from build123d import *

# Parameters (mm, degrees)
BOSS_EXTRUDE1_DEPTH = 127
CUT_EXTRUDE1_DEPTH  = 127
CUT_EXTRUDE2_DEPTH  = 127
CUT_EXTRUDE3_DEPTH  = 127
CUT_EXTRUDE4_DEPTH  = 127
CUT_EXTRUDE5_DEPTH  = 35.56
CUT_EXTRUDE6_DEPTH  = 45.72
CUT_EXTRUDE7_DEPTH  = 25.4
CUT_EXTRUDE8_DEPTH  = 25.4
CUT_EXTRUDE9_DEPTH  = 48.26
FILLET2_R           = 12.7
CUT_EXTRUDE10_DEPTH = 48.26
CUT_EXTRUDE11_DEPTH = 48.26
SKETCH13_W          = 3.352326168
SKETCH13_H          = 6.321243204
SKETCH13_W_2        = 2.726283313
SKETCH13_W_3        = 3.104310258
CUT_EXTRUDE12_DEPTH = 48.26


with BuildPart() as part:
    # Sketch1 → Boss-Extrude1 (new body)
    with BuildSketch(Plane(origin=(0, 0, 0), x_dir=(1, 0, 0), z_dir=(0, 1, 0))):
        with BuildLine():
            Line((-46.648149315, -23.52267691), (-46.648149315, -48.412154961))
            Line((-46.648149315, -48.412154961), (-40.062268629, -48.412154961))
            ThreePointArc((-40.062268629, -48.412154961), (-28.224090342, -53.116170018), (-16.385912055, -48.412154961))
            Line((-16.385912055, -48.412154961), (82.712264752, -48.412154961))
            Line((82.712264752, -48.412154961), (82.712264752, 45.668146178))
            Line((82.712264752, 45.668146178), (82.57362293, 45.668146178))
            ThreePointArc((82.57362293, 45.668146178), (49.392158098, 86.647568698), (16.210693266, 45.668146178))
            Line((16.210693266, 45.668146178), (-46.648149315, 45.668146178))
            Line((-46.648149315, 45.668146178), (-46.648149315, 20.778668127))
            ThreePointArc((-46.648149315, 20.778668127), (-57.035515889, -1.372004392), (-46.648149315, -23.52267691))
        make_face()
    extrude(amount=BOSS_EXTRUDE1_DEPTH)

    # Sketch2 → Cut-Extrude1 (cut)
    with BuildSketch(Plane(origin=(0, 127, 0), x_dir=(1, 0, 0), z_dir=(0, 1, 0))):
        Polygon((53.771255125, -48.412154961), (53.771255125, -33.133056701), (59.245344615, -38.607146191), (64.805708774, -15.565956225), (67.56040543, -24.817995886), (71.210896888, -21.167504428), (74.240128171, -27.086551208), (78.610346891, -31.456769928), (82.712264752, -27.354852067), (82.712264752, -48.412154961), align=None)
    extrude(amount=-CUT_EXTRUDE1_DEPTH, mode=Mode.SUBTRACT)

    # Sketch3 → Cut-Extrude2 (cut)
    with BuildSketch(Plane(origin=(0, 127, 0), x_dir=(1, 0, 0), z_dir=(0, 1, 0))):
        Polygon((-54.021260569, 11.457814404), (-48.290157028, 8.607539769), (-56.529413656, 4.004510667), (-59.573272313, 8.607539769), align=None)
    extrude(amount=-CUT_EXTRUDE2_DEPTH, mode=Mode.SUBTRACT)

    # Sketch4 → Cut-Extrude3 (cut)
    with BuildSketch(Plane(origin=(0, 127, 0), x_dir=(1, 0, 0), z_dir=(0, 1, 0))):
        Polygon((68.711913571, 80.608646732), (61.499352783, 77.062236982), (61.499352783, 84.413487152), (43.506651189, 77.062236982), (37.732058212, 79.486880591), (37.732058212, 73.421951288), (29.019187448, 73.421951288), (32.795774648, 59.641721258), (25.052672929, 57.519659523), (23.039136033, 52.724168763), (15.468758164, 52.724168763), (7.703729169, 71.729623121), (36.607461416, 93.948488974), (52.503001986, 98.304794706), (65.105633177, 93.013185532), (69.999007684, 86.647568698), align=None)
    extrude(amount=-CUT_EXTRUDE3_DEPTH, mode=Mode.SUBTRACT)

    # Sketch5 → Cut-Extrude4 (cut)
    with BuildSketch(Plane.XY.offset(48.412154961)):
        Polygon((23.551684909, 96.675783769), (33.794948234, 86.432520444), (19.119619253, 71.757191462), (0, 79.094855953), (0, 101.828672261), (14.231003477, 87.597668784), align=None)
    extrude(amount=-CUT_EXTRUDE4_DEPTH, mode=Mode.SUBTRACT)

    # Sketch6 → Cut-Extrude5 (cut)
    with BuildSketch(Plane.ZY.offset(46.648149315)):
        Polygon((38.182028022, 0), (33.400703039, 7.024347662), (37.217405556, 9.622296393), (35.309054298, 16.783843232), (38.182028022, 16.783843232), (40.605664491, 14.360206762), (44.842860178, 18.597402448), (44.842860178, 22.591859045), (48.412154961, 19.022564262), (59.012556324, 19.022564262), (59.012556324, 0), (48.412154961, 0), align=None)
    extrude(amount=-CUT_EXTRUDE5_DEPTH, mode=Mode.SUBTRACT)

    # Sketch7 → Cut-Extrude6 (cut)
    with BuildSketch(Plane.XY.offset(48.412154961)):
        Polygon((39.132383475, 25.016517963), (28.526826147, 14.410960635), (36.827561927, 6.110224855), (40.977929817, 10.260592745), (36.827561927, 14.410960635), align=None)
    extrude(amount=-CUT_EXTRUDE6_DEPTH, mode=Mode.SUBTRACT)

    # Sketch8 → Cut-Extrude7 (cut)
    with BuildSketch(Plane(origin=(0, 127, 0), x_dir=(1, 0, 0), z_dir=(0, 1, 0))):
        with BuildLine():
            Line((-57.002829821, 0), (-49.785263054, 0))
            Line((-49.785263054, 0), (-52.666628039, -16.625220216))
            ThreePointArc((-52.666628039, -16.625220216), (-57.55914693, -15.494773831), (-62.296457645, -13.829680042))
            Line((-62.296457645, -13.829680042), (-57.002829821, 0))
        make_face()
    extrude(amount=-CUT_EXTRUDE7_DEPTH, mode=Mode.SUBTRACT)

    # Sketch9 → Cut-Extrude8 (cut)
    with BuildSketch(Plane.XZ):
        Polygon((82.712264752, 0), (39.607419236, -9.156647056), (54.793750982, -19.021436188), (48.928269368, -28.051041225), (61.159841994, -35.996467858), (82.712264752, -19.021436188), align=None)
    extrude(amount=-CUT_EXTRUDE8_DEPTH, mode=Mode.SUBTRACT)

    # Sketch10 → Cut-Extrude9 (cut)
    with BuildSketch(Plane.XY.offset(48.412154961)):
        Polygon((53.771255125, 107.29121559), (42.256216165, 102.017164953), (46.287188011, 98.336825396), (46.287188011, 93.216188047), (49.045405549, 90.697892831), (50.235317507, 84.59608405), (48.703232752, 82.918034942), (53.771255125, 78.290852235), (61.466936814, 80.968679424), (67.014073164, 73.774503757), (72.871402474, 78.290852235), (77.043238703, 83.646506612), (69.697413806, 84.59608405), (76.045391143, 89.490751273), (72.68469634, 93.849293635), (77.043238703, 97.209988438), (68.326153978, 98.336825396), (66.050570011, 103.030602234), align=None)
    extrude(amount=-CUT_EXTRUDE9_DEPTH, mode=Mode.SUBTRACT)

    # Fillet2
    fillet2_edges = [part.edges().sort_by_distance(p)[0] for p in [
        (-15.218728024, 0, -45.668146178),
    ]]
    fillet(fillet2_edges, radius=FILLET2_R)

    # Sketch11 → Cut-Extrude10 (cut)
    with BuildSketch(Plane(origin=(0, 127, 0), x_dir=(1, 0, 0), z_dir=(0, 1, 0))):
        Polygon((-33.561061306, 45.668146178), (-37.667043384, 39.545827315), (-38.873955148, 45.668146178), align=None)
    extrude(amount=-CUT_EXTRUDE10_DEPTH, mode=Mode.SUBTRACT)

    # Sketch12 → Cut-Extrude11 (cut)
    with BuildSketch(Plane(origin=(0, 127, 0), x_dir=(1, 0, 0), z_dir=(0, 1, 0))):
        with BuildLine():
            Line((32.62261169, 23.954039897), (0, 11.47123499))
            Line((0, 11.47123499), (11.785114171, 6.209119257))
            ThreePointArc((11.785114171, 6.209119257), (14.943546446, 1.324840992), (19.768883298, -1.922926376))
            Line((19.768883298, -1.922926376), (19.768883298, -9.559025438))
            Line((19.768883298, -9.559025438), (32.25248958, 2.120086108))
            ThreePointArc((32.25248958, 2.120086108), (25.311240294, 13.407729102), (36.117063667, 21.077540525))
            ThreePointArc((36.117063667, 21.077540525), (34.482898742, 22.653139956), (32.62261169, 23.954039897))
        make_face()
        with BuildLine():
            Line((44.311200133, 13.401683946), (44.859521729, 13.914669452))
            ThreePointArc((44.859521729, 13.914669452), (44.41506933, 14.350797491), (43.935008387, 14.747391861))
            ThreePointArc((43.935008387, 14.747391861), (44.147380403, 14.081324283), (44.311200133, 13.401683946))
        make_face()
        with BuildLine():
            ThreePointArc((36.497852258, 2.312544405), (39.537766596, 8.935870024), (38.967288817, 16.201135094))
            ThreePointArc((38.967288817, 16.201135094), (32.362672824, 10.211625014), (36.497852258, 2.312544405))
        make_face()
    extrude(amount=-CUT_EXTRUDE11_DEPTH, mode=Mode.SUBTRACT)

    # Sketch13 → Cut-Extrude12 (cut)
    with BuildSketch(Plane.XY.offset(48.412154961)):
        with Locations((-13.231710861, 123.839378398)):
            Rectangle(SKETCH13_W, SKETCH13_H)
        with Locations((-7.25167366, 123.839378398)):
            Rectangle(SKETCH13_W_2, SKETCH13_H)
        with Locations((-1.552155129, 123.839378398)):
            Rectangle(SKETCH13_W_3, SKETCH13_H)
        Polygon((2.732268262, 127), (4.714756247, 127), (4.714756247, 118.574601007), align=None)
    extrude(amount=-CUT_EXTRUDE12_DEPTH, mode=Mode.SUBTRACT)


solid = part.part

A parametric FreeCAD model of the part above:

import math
import FreeCAD as App
import Part
import Sketcher
from FreeCAD import Vector
Q = App.Units.Quantity


def edges_at(feature, points):
    """Names of the edges that pass closest to the given points."""
    edges = feature.Shape.Edges
    near = lambda p: min(range(len(edges)), key=lambda i: edges[i].distToShape(Part.Vertex(*p))[0])
    return sorted({f"Edge{near(p) + 1}" for p in points})

doc = App.newDocument("Part")
body = doc.addObject("PartDesign::Body", "Body")

sketch1 = body.newObject("Sketcher::SketchObject", "Sketch")
sketch1.AttachmentSupport = (doc.getObject("XZ_Plane"), [""])
sketch1.MapMode = "FlatFace"
sketch1.addGeometry(Part.LineSegment(Vector(-46.65, 23.52, 0), Vector(-46.65, 48.41, 0)), False)
sketch1.addGeometry(Part.LineSegment(Vector(-46.65, 48.41, 0), Vector(-40.06, 48.41, 0)), False)
sketch1.addGeometry(Part.ArcOfCircle(Part.Circle(Vector(-28.22, 35.87, 0), Vector(0, 0, 1), 17.25), math.radians(47), math.radians(133)), False)
sketch1.addGeometry(Part.LineSegment(Vector(-16.39, 48.41, 0), Vector(82.71, 48.41, 0)), False)
sketch1.addGeometry(Part.LineSegment(Vector(82.71, 48.41, 0), Vector(82.71, -45.67, 0)), False)
sketch1.addGeometry(Part.LineSegment(Vector(82.71, -45.67, 0), Vector(82.57, -45.67, 0)), False)
sketch1.addGeometry(Part.ArcOfCircle(Part.Circle(Vector(49.39, -52.72, 0), Vector(0, 0, 1), 33.92), math.radians(168), math.radians(372)), False)
sketch1.addGeometry(Part.LineSegment(Vector(16.21, -45.67, 0), Vector(-46.65, -45.67, 0)), False)
sketch1.addGeometry(Part.LineSegment(Vector(-46.65, -45.67, 0), Vector(-46.65, -20.78, 0)), False)
sketch1.addGeometry(Part.ArcOfCircle(Part.Circle(Vector(-28.22, 1.37, 0), Vector(0, 0, 1), 28.81), math.radians(130), math.radians(230)), False)
sketch1.addConstraint(Sketcher.Constraint("Coincident", 0, 2, 1, 1))
sketch1.addConstraint(Sketcher.Constraint("Coincident", 1, 2, 2, 2))
sketch1.addConstraint(Sketcher.Constraint("Coincident", 2, 1, 3, 1))
sketch1.addConstraint(Sketcher.Constraint("Coincident", 3, 2, 4, 1))
sketch1.addConstraint(Sketcher.Constraint("Coincident", 4, 2, 5, 1))
sketch1.addConstraint(Sketcher.Constraint("Coincident", 5, 2, 6, 2))
sketch1.addConstraint(Sketcher.Constraint("Coincident", 6, 1, 7, 1))
sketch1.addConstraint(Sketcher.Constraint("Coincident", 7, 2, 8, 1))
sketch1.addConstraint(Sketcher.Constraint("Coincident", 8, 2, 9, 2))
sketch1.addConstraint(Sketcher.Constraint("Coincident", 9, 1, 0, 1))
sketch1.addConstraint(Sketcher.Constraint("Vertical", 0))
sketch1.addConstraint(Sketcher.Constraint("Horizontal", 1))
sketch1.addConstraint(Sketcher.Constraint("Horizontal", 3))
sketch1.addConstraint(Sketcher.Constraint("Vertical", 4))
sketch1.addConstraint(Sketcher.Constraint("Horizontal", 5))
sketch1.addConstraint(Sketcher.Constraint("Horizontal", 7))
sketch1.addConstraint(Sketcher.Constraint("Vertical", 8))
sketch1.addConstraint(Sketcher.Constraint("Horizontal", 1, 2, 2, 1))
sketch1.addConstraint(Sketcher.Constraint("Horizontal", 5, 2, 6, 1))
sketch1.addConstraint(Sketcher.Constraint("Vertical", 2, 3, 9, 3))
sketch1.addConstraint(Sketcher.Constraint("Vertical", 0, 2, 7, 2))
sketch1.addConstraint(Sketcher.Constraint("Equal", 0, 8))
sketch1.addConstraint(Sketcher.Constraint("Radius", 6, Q("33.9234 mm")))
sketch1.addConstraint(Sketcher.Constraint("DistanceY", 4, 2, 4, 1, Q("94.080301 mm")))
sketch1.addConstraint(Sketcher.Constraint("Radius", 2, Q("17.248055 mm")))
sketch1.addConstraint(Sketcher.Constraint("Radius", 9, Q("28.811426 mm")))
sketch1.addConstraint(Sketcher.Constraint("DistanceX", 1, 1, 1, 2, Q("6.585881 mm")))
sketch1.addConstraint(Sketcher.Constraint("DistanceX", 5, 2, 5, 1, Q("0.138642 mm")))
sketch1.addConstraint(Sketcher.Constraint("DistanceY", 0, 1, 0, 2, Q("24.889478 mm")))
sketch1.addConstraint(Sketcher.Constraint("DistanceX", 3, 1, 3, 2, Q("99.098177 mm")))
sketch1.addConstraint(Sketcher.Constraint("DistanceX", 7, 2, 7, 1, Q("62.858843 mm")))
sketch1.addConstraint(Sketcher.Constraint("DistanceX", 2, 3, -1, 1, Q("28.22409 mm")))
sketch1.addConstraint(Sketcher.Constraint("DistanceY", 6, 3, -1, 1, Q("52.724169 mm")))
pad1 = body.newObject("PartDesign::Pad", "Pad")
pad1.Profile = sketch1
pad1.Length = Q("5 in")
pad1.Reversed = True

sketch2 = body.newObject("Sketcher::SketchObject", "Sketch001")
sketch2.AttachmentSupport = (doc.getObject("XZ_Plane"), [""])
sketch2.MapMode = "FlatFace"
sketch2.AttachmentOffset = App.Placement(Vector(0, 0, -5 * 25.4), App.Rotation())
sketch2.addGeometry(Part.LineSegment(Vector(54, 33, 0), Vector(54, 48, 0)), False)
sketch2.addGeometry(Part.LineSegment(Vector(54, 48, 0), Vector(83, 48, 0)), False)
sketch2.addGeometry(Part.LineSegment(Vector(83, 48, 0), Vector(83, 27, 0)), False)
sketch2.addGeometry(Part.LineSegment(Vector(83, 27, 0), Vector(79, 31, 0)), False)
sketch2.addGeometry(Part.LineSegment(Vector(79, 31, 0), Vector(74, 27, 0)), False)
sketch2.addGeometry(Part.LineSegment(Vector(74, 27, 0), Vector(71, 21, 0)), False)
sketch2.addGeometry(Part.LineSegment(Vector(71, 21, 0), Vector(68, 25, 0)), False)
sketch2.addGeometry(Part.LineSegment(Vector(68, 25, 0), Vector(65, 16, 0)), False)
sketch2.addGeometry(Part.LineSegment(Vector(65, 16, 0), Vector(59, 39, 0)), False)
sketch2.addGeometry(Part.LineSegment(Vector(59, 39, 0), Vector(54, 33, 0)), False)
sketch2.addConstraint(Sketcher.Constraint("Coincident", 0, 2, 1, 1))
sketch2.addConstraint(Sketcher.Constraint("Coincident", 1, 2, 2, 1))
sketch2.addConstraint(Sketcher.Constraint("Coincident", 2, 2, 3, 1))
sketch2.addConstraint(Sketcher.Constraint("Coincident", 3, 2, 4, 1))
sketch2.addConstraint(Sketcher.Constraint("Coincident", 4, 2, 5, 1))
sketch2.addConstraint(Sketcher.Constraint("Coincident", 5, 2, 6, 1))
sketch2.addConstraint(Sketcher.Constraint("Coincident", 6, 2, 7, 1))
sketch2.addConstraint(Sketcher.Constraint("Coincident", 7, 2, 8, 1))
sketch2.addConstraint(Sketcher.Constraint("Coincident", 8, 2, 9, 1))
sketch2.addConstraint(Sketcher.Constraint("Coincident", 9, 2, 0, 1))
sketch2.addConstraint(Sketcher.Constraint("Vertical", 0))
sketch2.addConstraint(Sketcher.Constraint("Horizontal", 1))
sketch2.addConstraint(Sketcher.Constraint("Vertical", 2))
sketch2.addConstraint(Sketcher.Constraint("Perpendicular", 3, 4))
sketch2.addConstraint(Sketcher.Constraint("Perpendicular", 4, 6))
sketch2.addConstraint(Sketcher.Constraint("Perpendicular", 6, 9))
sketch2.addConstraint(Sketcher.Constraint("Angle", 3, Q("135 deg")))
sketch2.addConstraint(Sketcher.Constraint("DistanceY", 0, 1, 0, 2, Q("15.279098 mm")))
sketch2.addConstraint(Sketcher.Constraint("DistanceX", 0, 2, 5, 2, Q("0.6866001 in")))
sketch2.addConstraint(Sketcher.Constraint("DistanceY", 5, 2, 8, 2, Q("0.6866001 in")))
sketch2.addConstraint(Sketcher.Constraint("DistanceX", 1, 1, 1, 2, Q("28.94101 mm")))
sketch2.addConstraint(Sketcher.Constraint("DistanceY", 4, 2, 2, 2, Q("0.268301 mm")))
sketch2.addConstraint(Sketcher.Constraint("DistanceY", 7, 2, 9, 2, Q("17.5671 mm")))
sketch2.addConstraint(Sketcher.Constraint("Distance", 9, Q("7.741532 mm")))
sketch2.addConstraint(Sketcher.Constraint("DistanceY", 2, 2, 2, 1, Q("21.057303 mm")))
sketch2.addConstraint(Sketcher.Constraint("DistanceY", -1, 1, 3, 2, Q("31.45677 mm")))
sketch2.addConstraint(Sketcher.Constraint("DistanceX", -1, 1, 4, 2, Q("74.240128 mm")))
sketch2.addConstraint(Sketcher.Constraint("DistanceY", -1, 1, 4, 2, Q("27.086551 mm")))
sketch2.addConstraint(Sketcher.Constraint("DistanceX", -1, 1, 7, 2, Q("64.805709 mm")))
sketch2.addConstraint(Sketcher.Constraint("DistanceX", 6, 2, 5, 2, Q("3.650491 mm")))
pocket1 = body.newObject("PartDesign::Pocket", "Pocket")
pocket1.Profile = sketch2
pocket1.Length = Q("5 in")
pocket1.Reversed = True

sketch3 = body.newObject("Sketcher::SketchObject", "Sketch002")
sketch3.AttachmentSupport = (doc.getObject("XZ_Plane"), [""])
sketch3.MapMode = "FlatFace"
sketch3.AttachmentOffset = App.Placement(Vector(0, 0, -5 * 25.4), App.Rotation())
sketch3.addGeometry(Part.LineSegment(Vector(-48, -9, 0), Vector(-54, -11, 0)), False)
sketch3.addGeometry(Part.LineSegment(Vector(-54, -11, 0), Vector(-60, -9, 0)), False)
sketch3.addGeometry(Part.LineSegment(Vector(-60, -9, 0), Vector(-57, -4, 0)), False)
sketch3.addGeometry(Part.LineSegment(Vector(-57, -4, 0), Vector(-48, -9, 0)), False)
sketch3.addConstraint(Sketcher.Constraint("Coincident", 0, 2, 1, 1))
sketch3.addConstraint(Sketcher.Constraint("Coincident", 1, 2, 2, 1))
sketch3.addConstraint(Sketcher.Constraint("Coincident", 2, 2, 3, 1))
sketch3.addConstraint(Sketcher.Constraint("Coincident", 3, 2, 0, 1))
sketch3.addConstraint(Sketcher.Constraint("Horizontal", 1, 2, 3, 2))
sketch3.addConstraint(Sketcher.Constraint("Distance", 0, Q("6.400751 mm")))
sketch3.addConstraint(Sketcher.Constraint("Distance", 2, Q("5.518419 mm")))
sketch3.addConstraint(Sketcher.Constraint("Distance", 3, Q("9.437861 mm")))
sketch3.addConstraint(Sketcher.Constraint("DistanceX", 0, 2, -1, 1, Q("54.021261 mm")))
sketch3.addConstraint(Sketcher.Constraint("DistanceY", 1, 2, -1, 1, Q("8.60754 mm")))
sketch3.addConstraint(Sketcher.Constraint("DistanceY", 2, 2, -1, 1, Q("4.004511 mm")))
sketch3.addConstraint(Sketcher.Constraint("DistanceX", 1, 2, 0, 2, Q("5.552012 mm")))
pocket2 = body.newObject("PartDesign::Pocket", "Pocket001")
pocket2.Profile = sketch3
pocket2.Length = Q("5 in")
pocket2.Reversed = True

sketch4 = body.newObject("Sketcher::SketchObject", "Sketch003")
sketch4.AttachmentSupport = (doc.getObject("XZ_Plane"), [""])
sketch4.MapMode = "FlatFace"
sketch4.AttachmentOffset = App.Placement(Vector(0, 0, -5 * 25.4), App.Rotation())
sketch4.addGeometry(Part.LineSegment(Vector(61, -77, 0), Vector(69, -81, 0)), False)
sketch4.addGeometry(Part.LineSegment(Vector(69, -81, 0), Vector(70, -87, 0)), False)
sketch4.addGeometry(Part.LineSegment(Vector(70, -87, 0), Vector(65, -93, 0)), False)
sketch4.addGeometry(Part.LineSegment(Vector(65, -93, 0), Vector(53, -98, 0)), False)
sketch4.addGeometry(Part.LineSegment(Vector(53, -98, 0), Vector(37, -94, 0)), False)
sketch4.addGeometry(Part.LineSegment(Vector(37, -94, 0), Vector(8, -72, 0)), False)
sketch4.addGeometry(Part.LineSegment(Vector(8, -72, 0), Vector(15, -53, 0)), False)
sketch4.addGeometry(Part.LineSegment(Vector(15, -53, 0), Vector(23, -53, 0)), False)
sketch4.addGeometry(Part.LineSegment(Vector(23, -53, 0), Vector(25, -58, 0)), False)
sketch4.addGeometry(Part.LineSegment(Vector(25, -58, 0), Vector(33, -60, 0)), False)
sketch4.addGeometry(Part.LineSegment(Vector(33, -60, 0), Vector(29, -73, 0)), False)
sketch4.addGeometry(Part.LineSegment(Vector(29, -73, 0), Vector(38, -73, 0)), False)
sketch4.addGeometry(Part.LineSegment(Vector(38, -73, 0), Vector(38, -79, 0)), False)
sketch4.addGeometry(Part.LineSegment(Vector(38, -79, 0), Vector(44, -77, 0)), False)
sketch4.addGeometry(Part.LineSegment(Vector(44, -77, 0), Vector(61, -84, 0)), False)
sketch4.addGeometry(Part.LineSegment(Vector(61, -84, 0), Vector(61, -77, 0)), False)
sketch4.addConstraint(Sketcher.Constraint("Coincident", 0, 2, 1, 1))
sketch4.addConstraint(Sketcher.Constraint("Coincident", 1, 2, 2, 1))
sketch4.addConstraint(Sketcher.Constraint("Coincident", 2, 2, 3, 1))
sketch4.addConstraint(Sketcher.Constraint("Coincident", 3, 2, 4, 1))
sketch4.addConstraint(Sketcher.Constraint("Coincident", 4, 2, 5, 1))
sketch4.addConstraint(Sketcher.Constraint("Coincident", 5, 2, 6, 1))
sketch4.addConstraint(Sketcher.Constraint("Coincident", 6, 2, 7, 1))
sketch4.addConstraint(Sketcher.Constraint("Coincident", 7, 2, 8, 1))
sketch4.addConstraint(Sketcher.Constraint("Coincident", 8, 2, 9, 1))
sketch4.addConstraint(Sketcher.Constraint("Coincident", 9, 2, 10, 1))
sketch4.addConstraint(Sketcher.Constraint("Coincident", 10, 2, 11, 1))
sketch4.addConstraint(Sketcher.Constraint("Coincident", 11, 2, 12, 1))
sketch4.addConstraint(Sketcher.Constraint("Coincident", 12, 2, 13, 1))
sketch4.addConstraint(Sketcher.Constraint("Coincident", 13, 2, 14, 1))
sketch4.addConstraint(Sketcher.Constraint("Coincident", 14, 2, 15, 1))
sketch4.addConstraint(Sketcher.Constraint("Coincident", 15, 2, 0, 1))
sketch4.addConstraint(Sketcher.Constraint("Horizontal", 7))
sketch4.addConstraint(Sketcher.Constraint("Horizontal", 11))
sketch4.addConstraint(Sketcher.Constraint("Vertical", 12))
sketch4.addConstraint(Sketcher.Constraint("Vertical", 15))
sketch4.addConstraint(Sketcher.Constraint("Perpendicular", 2, 5))
sketch4.addConstraint(Sketcher.Constraint("Perpendicular", 3, 8))
sketch4.addConstraint(Sketcher.Constraint("Parallel", 4, 9))
sketch4.addConstraint(Sketcher.Constraint("Perpendicular", 9, 10))
sketch4.addConstraint(Sketcher.Constraint("Perpendicular", 8, 13))
sketch4.addConstraint(Sketcher.Constraint("Perpendicular", 6, 14))
sketch4.addConstraint(Sketcher.Constraint("Horizontal", 13, 2, 15, 2))
sketch4.addConstraint(Sketcher.Constraint("DistanceX", 11, 1, 11, 2, Q("8.712871 mm")))
sketch4.addConstraint(Sketcher.Constraint("DistanceY", 12, 2, 12, 1, Q("6.064929 mm")))
sketch4.addConstraint(Sketcher.Constraint("DistanceY", 15, 1, 15, 2, Q("7.35125 mm")))
sketch4.addConstraint(Sketcher.Constraint("DistanceX", -1, 1, 3, 2, Q("52.503002 mm")))
sketch4.addConstraint(Sketcher.Constraint("DistanceX", 8, 2, 9, 2, Q("7.743102 mm")))
sketch4.addConstraint(Sketcher.Constraint("DistanceY", 5, 2, 9, 2, Q("12.087902 mm")))
sketch4.addConstraint(Sketcher.Constraint("DistanceY", 2, 2, 14, 2, Q("8.599698 mm")))
sketch4.addConstraint(Sketcher.Constraint("DistanceX", 13, 2, 14, 2, Q("17.992702 mm")))
sketch4.addConstraint(Sketcher.Constraint("Distance", 0, Q("8.037292 mm")))
sketch4.addConstraint(Sketcher.Constraint("Distance", 1, Q("6.17456 mm")))
sketch4.addConstraint(Sketcher.Constraint("Distance", 9, Q("8.028622 mm")))
sketch4.addConstraint(Sketcher.Constraint("DistanceX", 7, 1, 7, 2, Q("7.570378 mm")))
sketch4.addConstraint(Sketcher.Constraint("DistanceY", 1, 2, -1, 1, Q("86.647569 mm")))
sketch4.addConstraint(Sketcher.Constraint("DistanceX", -1, 1, 4, 2, Q("36.607461 mm")))
sketch4.addConstraint(Sketcher.Constraint("DistanceY", 4, 2, -1, 1, Q("93.948489 mm")))
sketch4.addConstraint(Sketcher.Constraint("DistanceX", -1, 1, 5, 2, Q("7.703729 mm")))
sketch4.addConstraint(Sketcher.Constraint("DistanceX", -1, 1, 6, 2, Q("15.468758 mm")))
sketch4.addConstraint(Sketcher.Constraint("DistanceY", 6, 2, -1, 1, Q("52.724169 mm")))
sketch4.addConstraint(Sketcher.Constraint("DistanceY", 10, 2, -1, 1, Q("73.421951 mm")))
sketch4.addConstraint(Sketcher.Constraint("DistanceX", -1, 1, 11, 2, Q("37.732058 mm")))
sketch4.addConstraint(Sketcher.Constraint("DistanceX", -1, 1, 13, 2, Q("43.506651 mm")))
pocket3 = body.newObject("PartDesign::Pocket", "Pocket002")
pocket3.Profile = sketch4
pocket3.Length = Q("5 in")
pocket3.Reversed = True

sketch5 = body.newObject("Sketcher::SketchObject", "Sketch004")
sketch5.AttachmentSupport = (doc.getObject("XY_Plane"), [""])
sketch5.MapMode = "FlatFace"
sketch5.AttachmentOffset = App.Placement(Vector(0, 0, 48.412155), App.Rotation())
sketch5.addGeometry(Part.LineSegment(Vector(34, 86, 0), Vector(24, 97, 0)), False)
sketch5.addGeometry(Part.LineSegment(Vector(24, 97, 0), Vector(14, 88, 0)), False)
sketch5.addGeometry(Part.LineSegment(Vector(14, 88, 0), Vector(0, 102, 0)), False)
sketch5.addGeometry(Part.LineSegment(Vector(0, 102, 0), Vector(0, 79, 0)), False)
sketch5.addGeometry(Part.LineSegment(Vector(0, 79, 0), Vector(19, 72, 0)), False)
sketch5.addGeometry(Part.LineSegment(Vector(19, 72, 0), Vector(34, 86, 0)), False)
sketch5.addConstraint(Sketcher.Constraint("Coincident", 0, 2, 1, 1))
sketch5.addConstraint(Sketcher.Constraint("Coincident", 1, 2, 2, 1))
sketch5.addConstraint(Sketcher.Constraint("Coincident", 2, 2, 3, 1))
sketch5.addConstraint(Sketcher.Constraint("Coincident", 3, 2, 4, 1))
sketch5.addConstraint(Sketcher.Constraint("Coincident", 4, 2, 5, 1))
sketch5.addConstraint(Sketcher.Constraint("Coincident", 5, 2, 0, 1))
sketch5.addConstraint(Sketcher.Constraint("Vertical", 3))
sketch5.addConstraint(Sketcher.Constraint("PointOnObject", 2, 2, -2))
sketch5.addConstraint(Sketcher.Constraint("Parallel", 0, 2))
sketch5.addConstraint(Sketcher.Constraint("Perpendicular", 2, 5))
sketch5.addConstraint(Sketcher.Constraint("Angle", 0, Q("135 deg")))
sketch5.addConstraint(Sketcher.Constraint("Distance", 0, Q("14.486162 mm")))
sketch5.addConstraint(Sketcher.Constraint("Distance", 2, Q("20.125678 mm")))
sketch5.addConstraint(Sketcher.Constraint("Distance", 5, Q("20.754049 mm")))
sketch5.addConstraint(Sketcher.Constraint("DistanceY", 3, 2, 3, 1, Q("22.733816 mm")))
sketch5.addConstraint(Sketcher.Constraint("DistanceY", -1, 1, 1, 2, Q("87.597669 mm")))
sketch5.addConstraint(Sketcher.Constraint("DistanceX", -1, 1, 4, 2, Q("19.119619 mm")))
sketch5.addConstraint(Sketcher.Constraint("DistanceY", -1, 1, 4, 2, Q("71.757191 mm")))
pocket4 = body.newObject("PartDesign::Pocket", "Pocket003")
pocket4.Profile = sketch5
pocket4.Length = Q("5 in")

sketch6 = body.newObject("Sketcher::SketchObject", "Sketch005")
sketch6.AttachmentSupport = (doc.getObject("YZ_Plane"), [""])
sketch6.MapMode = "FlatFace"
sketch6.AttachmentOffset = App.Placement(Vector(0, 0, -46.648149), App.Rotation())
sketch6.addGeometry(Part.LineSegment(Vector(7, 33.4, 0), Vector(0, 38.2, 0)), False)
sketch6.addGeometry(Part.LineSegment(Vector(0, 38.2, 0), Vector(0, 59, 0)), False)
sketch6.addGeometry(Part.LineSegment(Vector(0, 59, 0), Vector(19, 59, 0)), False)
sketch6.addGeometry(Part.LineSegment(Vector(19, 59, 0), Vector(19, 48.4, 0)), False)
sketch6.addGeometry(Part.LineSegment(Vector(19, 48.4, 0), Vector(22.6, 44.8, 0)), False)
sketch6.addGeometry(Part.LineSegment(Vector(22.6, 44.8, 0), Vector(18.6, 44.8, 0)), False)
sketch6.addGeometry(Part.LineSegment(Vector(18.6, 44.8, 0), Vector(14.4, 40.6, 0)), False)
sketch6.addGeometry(Part.LineSegment(Vector(14.4, 40.6, 0), Vector(16.8, 38.2, 0)), False)
sketch6.addGeometry(Part.LineSegment(Vector(16.8, 38.2, 0), Vector(16.8, 35.3, 0)), False)
sketch6.addGeometry(Part.LineSegment(Vector(16.8, 35.3, 0), Vector(9.6, 37.2, 0)), False)
sketch6.addGeometry(Part.LineSegment(Vector(9.6, 37.2, 0), Vector(7, 33.4, 0)), False)
sketch6.addConstraint(Sketcher.Constraint("Coincident", 0, 2, 1, 1))
sketch6.addConstraint(Sketcher.Constraint("Coincident", 1, 2, 2, 1))
sketch6.addConstraint(Sketcher.Constraint("Coincident", 2, 2, 3, 1))
sketch6.addConstraint(Sketcher.Constraint("Coincident", 3, 2, 4, 1))
sketch6.addConstraint(Sketcher.Constraint("Coincident", 4, 2, 5, 1))
sketch6.addConstraint(Sketcher.Constraint("Coincident", 5, 2, 6, 1))
sketch6.addConstraint(Sketcher.Constraint("Coincident", 6, 2, 7, 1))
sketch6.addConstraint(Sketcher.Constraint("Coincident", 7, 2, 8, 1))
sketch6.addConstraint(Sketcher.Constraint("Coincident", 8, 2, 9, 1))
sketch6.addConstraint(Sketcher.Constraint("Coincident", 9, 2, 10, 1))
sketch6.addConstraint(Sketcher.Constraint("Coincident", 10, 2, 0, 1))
sketch6.addConstraint(Sketcher.Constraint("Vertical", 1))
sketch6.addConstraint(Sketcher.Constraint("Horizontal", 2))
sketch6.addConstraint(Sketcher.Constraint("Vertical", 3))
sketch6.addConstraint(Sketcher.Constraint("Horizontal", 5))
sketch6.addConstraint(Sketcher.Constraint("Vertical", 8))
sketch6.addConstraint(Sketcher.Constraint("PointOnObject", 0, 2, -2))
sketch6.addConstraint(Sketcher.Constraint("Perpendicular", 4, 6))
sketch6.addConstraint(Sketcher.Constraint("Perpendicular", 6, 7))
sketch6.addConstraint(Sketcher.Constraint("Perpendicular", 0, 10))
sketch6.addConstraint(Sketcher.Constraint("Horizontal", 0, 2, 7, 2))
sketch6.addConstraint(Sketcher.Constraint("Angle", 4, Q("-45 deg")))
sketch6.addConstraint(Sketcher.Constraint("DistanceY", 3, 2, 3, 1, Q("10.600401 mm")))
sketch6.addConstraint(Sketcher.Constraint("DistanceX", 7, 2, 5, 2, Q("0.0714 in")))
sketch6.addConstraint(Sketcher.Constraint("Distance", 6, Q("5.9923 mm")))
sketch6.addConstraint(Sketcher.Constraint("DistanceY", 1, 1, 1, 2, Q("20.830528 mm")))
sketch6.addConstraint(Sketcher.Constraint("DistanceY", 8, 2, 3, 2, Q("13.103101 mm")))
sketch6.addConstraint(Sketcher.Constraint("DistanceX", 2, 1, 2, 2, Q("19.022564 mm")))
sketch6.addConstraint(Sketcher.Constraint("DistanceX", 5, 2, 5, 1, Q("3.994457 mm")))
sketch6.addConstraint(Sketcher.Constraint("DistanceY", -1, 1, 0, 2, Q("38.182028 mm")))
sketch6.addConstraint(Sketcher.Constraint("DistanceX", 9, 2, 6, 2, Q("4.73791 mm")))
sketch6.addConstraint(Sketcher.Constraint("DistanceY", 9, 2, 6, 2, Q("3.388259 mm")))
sketch6.addConstraint(Sketcher.Constraint("DistanceX", 10, 2, 9, 2, Q("2.597949 mm")))
pocket5 = body.newObject("PartDesign::Pocket", "Pocket004")
pocket5.Profile = sketch6
pocket5.Length = Q("1.4 in")
pocket5.Reversed = True

sketch7 = body.newObject("Sketcher::SketchObject", "Sketch006")
sketch7.AttachmentSupport = (doc.getObject("XY_Plane"), [""])
sketch7.MapMode = "FlatFace"
sketch7.AttachmentOffset = App.Placement(Vector(0, 0, 48.412155), App.Rotation())
sketch7.addGeometry(Part.LineSegment(Vector(39, 25, 0), Vector(29, 14, 0)), False)
sketch7.addGeometry(Part.LineSegment(Vector(29, 14, 0), Vector(37, 6, 0)), False)
sketch7.addGeometry(Part.LineSegment(Vector(37, 6, 0), Vector(41, 10, 0)), False)
sketch7.addGeometry(Part.LineSegment(Vector(41, 10, 0), Vector(37, 14, 0)), False)
sketch7.addGeometry(Part.LineSegment(Vector(37, 14, 0), Vector(39, 25, 0)), False)
sketch7.addConstraint(Sketcher.Constraint("Coincident", 0, 2, 1, 1))
sketch7.addConstraint(Sketcher.Constraint("Coincident", 1, 2, 2, 1))
sketch7.addConstraint(Sketcher.Constraint("Coincident", 2, 2, 3, 1))
sketch7.addConstraint(Sketcher.Constraint("Coincident", 3, 2, 4, 1))
sketch7.addConstraint(Sketcher.Constraint("Coincident", 4, 2, 0, 1))
sketch7.addConstraint(Sketcher.Constraint("Perpendicular", 0, 1))
sketch7.addConstraint(Sketcher.Constraint("Perpendicular", 1, 2))
sketch7.addConstraint(Sketcher.Constraint("Perpendicular", 2, 3))
sketch7.addConstraint(Sketcher.Constraint("Horizontal", 0, 2, 3, 2))
sketch7.addConstraint(Sketcher.Constraint("Vertical", 1, 2, 3, 2))
sketch7.addConstraint(Sketcher.Constraint("Equal", 2, 3))
sketch7.addConstraint(Sketcher.Constraint("DistanceY", -1, 1, 0, 2, Q("14.410961 mm")))
sketch7.addConstraint(Sketcher.Constraint("DistanceX", -1, 1, 1, 2, Q("36.827562 mm")))
sketch7.addConstraint(Sketcher.Constraint("DistanceX", -1, 1, 2, 2, Q("40.97793 mm")))
sketch7.addConstraint(Sketcher.Constraint("DistanceX", 3, 2, 4, 2, Q("2.304822 mm")))
pocket6 = body.newObject("PartDesign::Pocket", "Pocket005")
pocket6.Profile = sketch7
pocket6.Length = Q("1.8 in")

sketch8 = body.newObject("Sketcher::SketchObject", "Sketch007")
sketch8.AttachmentSupport = (doc.getObject("XZ_Plane"), [""])
sketch8.MapMode = "FlatFace"
sketch8.AttachmentOffset = App.Placement(Vector(0, 0, -5 * 25.4), App.Rotation())
sketch8.addGeometry(Part.LineSegment(Vector(-50, 0, 0), Vector(-57, 0, 0)), False)
sketch8.addGeometry(Part.LineSegment(Vector(-57, 0, 0), Vector(-62, 14, 0)), False)
sketch8.addGeometry(Part.ArcOfCircle(Part.Circle(Vector(-45, -28, 0), Vector(0, 0, 1), 45), math.radians(99.83), math.radians(112.54)), False)
sketch8.addGeometry(Part.LineSegment(Vector(-53, 17, 0), Vector(-50, 0, 0)), False)
sketch8.addConstraint(Sketcher.Constraint("Coincident", 0, 2, 1, 1))
sketch8.addConstraint(Sketcher.Constraint("Coincident", 1, 2, 2, 2))
sketch8.addConstraint(Sketcher.Constraint("Coincident", 2, 1, 3, 1))
sketch8.addConstraint(Sketcher.Constraint("Coincident", 3, 2, 0, 1))
sketch8.addConstraint(Sketcher.Constraint("Horizontal", 0))
sketch8.addConstraint(Sketcher.Constraint("PointOnObject", 0, 2, -1))
sketch8.addConstraint(Sketcher.Constraint("Radius", 2, Q("45.29142 mm")))
sketch8.addConstraint(Sketcher.Constraint("DistanceX", 0, 2, 2, 1, Q("4.336202 mm")))
sketch8.addConstraint(Sketcher.Constraint("Distance", 1, Q("14.808192 mm")))
sketch8.addConstraint(Sketcher.Constraint("Distance", 3, Q("16.873062 mm")))
sketch8.addConstraint(Sketcher.Constraint("DistanceX", 0, 2, 0, 1, Q("7.217567 mm")))
sketch8.addConstraint(Sketcher.Constraint("DistanceX", 2, 3, -1, 1, Q("44.93234 mm")))
sketch8.addConstraint(Sketcher.Constraint("DistanceX", 0, 2, -1, 1, Q("57.00283 mm")))
pocket7 = body.newObject("PartDesign::Pocket", "Pocket006")
pocket7.Profile = sketch8
pocket7.Length = Q("1 in")
pocket7.Reversed = True

sketch9 = body.newObject("Sketcher::SketchObject", "Sketch008")
sketch9.AttachmentSupport = (doc.getObject("XZ_Plane"), [""])
sketch9.MapMode = "FlatFace"
sketch9.addGeometry(Part.LineSegment(Vector(83, 0, 0), Vector(40, -9, 0)), False)
sketch9.addGeometry(Part.LineSegment(Vector(40, -9, 0), Vector(55, -19, 0)), False)
sketch9.addGeometry(Part.LineSegment(Vector(55, -19, 0), Vector(49, -28, 0)), False)
sketch9.addGeometry(Part.LineSegment(Vector(49, -28, 0), Vector(61, -36, 0)), False)
sketch9.addGeometry(Part.LineSegment(Vector(61, -36, 0), Vector(83, -19, 0)), False)
sketch9.addGeometry(Part.LineSegment(Vector(83, -19, 0), Vector(83, 0, 0)), False)
sketch9.addConstraint(Sketcher.Constraint("Coincident", 0, 2, 1, 1))
sketch9.addConstraint(Sketcher.Constraint("Coincident", 1, 2, 2, 1))
sketch9.addConstraint(Sketcher.Constraint("Coincident", 2, 2, 3, 1))
sketch9.addConstraint(Sketcher.Constraint("Coincident", 3, 2, 4, 1))
sketch9.addConstraint(Sketcher.Constraint("Coincident", 4, 2, 5, 1))
sketch9.addConstraint(Sketcher.Constraint("Coincident", 5, 2, 0, 1))
sketch9.addConstraint(Sketcher.Constraint("Vertical", 5))
sketch9.addConstraint(Sketcher.Constraint("PointOnObject", 5, 2, -1))
sketch9.addConstraint(Sketcher.Constraint("Perpendicular", 1, 2))
sketch9.addConstraint(Sketcher.Constraint("Perpendicular", 2, 3))
sketch9.addConstraint(Sketcher.Constraint("Horizontal", 1, 2, 4, 2))
sketch9.addConstraint(Sketcher.Constraint("Distance", 1, Q("18.109079 mm")))
sketch9.addConstraint(Sketcher.Constraint("Distance", 3, Q("14.58565 mm")))
sketch9.addConstraint(Sketcher.Constraint("DistanceY", 5, 1, 5, 2, Q("19.021436 mm")))
sketch9.addConstraint(Sketcher.Constraint("DistanceX", -1, 1, 0, 2, Q("39.607419 mm")))
sketch9.addConstraint(Sketcher.Constraint("DistanceX", -1, 1, 1, 2, Q("54.793751 mm")))
sketch9.addConstraint(Sketcher.Constraint("DistanceX", -1, 1, 2, 2, Q("48.928269 mm")))
sketch9.addConstraint(Sketcher.Constraint("Distance", 0, Q("44.066676 mm")))
pocket8 = body.newObject("PartDesign::Pocket", "Pocket007")
pocket8.Profile = sketch9
pocket8.Length = Q("1 in")

sketch10 = body.newObject("Sketcher::SketchObject", "Sketch009")
sketch10.AttachmentSupport = (doc.getObject("XY_Plane"), [""])
sketch10.MapMode = "FlatFace"
sketch10.AttachmentOffset = App.Placement(Vector(0, 0, 48.412155), App.Rotation())
sketch10.addGeometry(Part.LineSegment(Vector(53.8, 107.3, 0), Vector(42.3, 102, 0)), False)
sketch10.addGeometry(Part.LineSegment(Vector(42.3, 102, 0), Vector(46.3, 98.3, 0)), False)
sketch10.addGeometry(Part.LineSegment(Vector(46.3, 98.3, 0), Vector(46.3, 93.2, 0)), False)
sketch10.addGeometry(Part.LineSegment(Vector(46.3, 93.2, 0), Vector(49, 90.7, 0)), False)
sketch10.addGeometry(Part.LineSegment(Vector(49, 90.7, 0), Vector(50.2, 84.6, 0)), False)
sketch10.addGeometry(Part.LineSegment(Vector(50.2, 84.6, 0), Vector(48.7, 82.9, 0)), False)
sketch10.addGeometry(Part.LineSegment(Vector(48.7, 82.9, 0), Vector(53.8, 78.3, 0)), False)
sketch10.addGeometry(Part.LineSegment(Vector(53.8, 78.3, 0), Vector(61.5, 81, 0)), False)
sketch10.addGeometry(Part.LineSegment(Vector(61.5, 81, 0), Vector(67, 73.8, 0)), False)
sketch10.addGeometry(Part.LineSegment(Vector(67, 73.8, 0), Vector(72.9, 78.3, 0)), False)
sketch10.addGeometry(Part.LineSegment(Vector(72.9, 78.3, 0), Vector(77, 83.6, 0)), False)
sketch10.addGeometry(Part.LineSegment(Vector(77, 83.6, 0), Vector(69.7, 84.6, 0)), False)
sketch10.addGeometry(Part.LineSegment(Vector(69.7, 84.6, 0), Vector(76, 89.5, 0)), False)
sketch10.addGeometry(Part.LineSegment(Vector(76, 89.5, 0), Vector(72.7, 93.8, 0)), False)
sketch10.addGeometry(Part.LineSegment(Vector(72.7, 93.8, 0), Vector(77, 97.2, 0)), False)
sketch10.addGeometry(Part.LineSegment(Vector(77, 97.2, 0), Vector(68.3, 98.3, 0)), False)
sketch10.addGeometry(Part.LineSegment(Vector(68.3, 98.3, 0), Vector(66.1, 103, 0)), False)
sketch10.addGeometry(Part.LineSegment(Vector(66.1, 103, 0), Vector(53.8, 107.3, 0)), False)
sketch10.addConstraint(Sketcher.Constraint("Coincident", 0, 2, 1, 1))
sketch10.addConstraint(Sketcher.Constraint("Coincident", 1, 2, 2, 1))
sketch10.addConstraint(Sketcher.Constraint("Coincident", 2, 2, 3, 1))
sketch10.addConstraint(Sketcher.Constraint("Coincident", 3, 2, 4, 1))
sketch10.addConstraint(Sketcher.Constraint("Coincident", 4, 2, 5, 1))
sketch10.addConstraint(Sketcher.Constraint("Coincident", 5, 2, 6, 1))
sketch10.addConstraint(Sketcher.Constraint("Coincident", 6, 2, 7, 1))
sketch10.addConstraint(Sketcher.Constraint("Coincident", 7, 2, 8, 1))
sketch10.addConstraint(Sketcher.Constraint("Coincident", 8, 2, 9, 1))
sketch10.addConstraint(Sketcher.Constraint("Coincident", 9, 2, 10, 1))
sketch10.addConstraint(Sketcher.Constraint("Coincident", 10, 2, 11, 1))
sketch10.addConstraint(Sketcher.Constraint("Coincident", 11, 2, 12, 1))
sketch10.addConstraint(Sketcher.Constraint("Coincident", 12, 2, 13, 1))
sketch10.addConstraint(Sketcher.Constraint("Coincident", 13, 2, 14, 1))
sketch10.addConstraint(Sketcher.Constraint("Coincident", 14, 2, 15, 1))
sketch10.addConstraint(Sketcher.Constraint("Coincident", 15, 2, 16, 1))
sketch10.addConstraint(Sketcher.Constraint("Coincident", 16, 2, 17, 1))
sketch10.addConstraint(Sketcher.Constraint("Coincident", 17, 2, 0, 1))
sketch10.addConstraint(Sketcher.Constraint("Vertical", 2))
sketch10.addConstraint(Sketcher.Constraint("Parallel", 1, 3))
sketch10.addConstraint(Sketcher.Constraint("Perpendicular", 3, 5))
sketch10.addConstraint(Sketcher.Constraint("Perpendicular", 5, 6))
sketch10.addConstraint(Sketcher.Constraint("Perpendicular", 8, 9))
sketch10.addConstraint(Sketcher.Constraint("Parallel", 9, 12))
sketch10.addConstraint(Sketcher.Constraint("Perpendicular", 12, 13))
sketch10.addConstraint(Sketcher.Constraint("Perpendicular", 13, 14))
sketch10.addConstraint(Sketcher.Constraint("Parallel", 11, 15))
sketch10.addConstraint(Sketcher.Constraint("Horizontal", 6, 2, 9, 2))
sketch10.addConstraint(Sketcher.Constraint("Horizontal", 4, 2, 11, 2))
sketch10.addConstraint(Sketcher.Constraint("Horizontal", 1, 2, 15, 2))
sketch10.addConstraint(Sketcher.Constraint("Vertical", 10, 2, 14, 2))
sketch10.addConstraint(Sketcher.Constraint("Vertical", 6, 2, 17, 2))
sketch10.addConstraint(Sketcher.Constraint("Equal", 13, 14))
sketch10.addConstraint(Sketcher.Constraint("DistanceY", 2, 2, 2, 1, Q("0.2015999 in")))
sketch10.addConstraint(Sketcher.Constraint("DistanceX", 0, 2, 4, 2, Q("7.979101 mm")))
sketch10.addConstraint(Sketcher.Constraint("DistanceX", 7, 2, 10, 2, Q("15.576302 mm")))
sketch10.addConstraint(Sketcher.Constraint("DistanceY", 9, 2, 12, 2, Q("11.199899 mm")))
sketch10.addConstraint(Sketcher.Constraint("DistanceX", 17, 2, 15, 2, Q("14.554899 mm")))
sketch10.addConstraint(Sketcher.Constraint("Distance", 4, Q("6.216748 mm")))
sketch10.addConstraint(Sketcher.Constraint("Distance", 6, Q("6.862629 mm")))
sketch10.addConstraint(Sketcher.Constraint("Distance", 7, Q("8.148268 mm")))
sketch10.addConstraint(Sketcher.Constraint("Distance", 8, Q("9.084431 mm")))
sketch10.addConstraint(Sketcher.Constraint("Distance", 9, Q("7.396331 mm")))
sketch10.addConstraint(Sketcher.Constraint("Distance", 10, Q("6.788759 mm")))
sketch10.addConstraint(Sketcher.Constraint("Distance", 13, Q("5.503741 mm")))
sketch10.addConstraint(Sketcher.Constraint("DistanceX", -1, 1, 1, 2, Q("46.287188 mm")))
sketch10.addConstraint(Sketcher.Constraint("DistanceY", -1, 1, 2, 2, Q("93.216188 mm")))
sketch10.addConstraint(Sketcher.Constraint("DistanceY", -1, 1, 7, 2, Q("80.968679 mm")))
sketch10.addConstraint(Sketcher.Constraint("DistanceX", -1, 1, 10, 2, Q("77.043239 mm")))
sketch10.addConstraint(Sketcher.Constraint("DistanceX", -1, 1, 12, 2, Q("76.045391 mm")))
sketch10.addConstraint(Sketcher.Constraint("DistanceX", -1, 1, 16, 2, Q("66.05057 mm")))
sketch10.addConstraint(Sketcher.Constraint("DistanceX", 0, 2, 1, 2, Q("4.030972 mm")))
sketch10.addConstraint(Sketcher.Constraint("DistanceY", 13, 2, 16, 2, Q("9.181309 mm")))
sketch10.addConstraint(Sketcher.Constraint("DistanceY", 1, 2, 17, 2, Q("8.95439 mm")))
pocket9 = body.newObject("PartDesign::Pocket", "Pocket008")
pocket9.Profile = sketch10
pocket9.Length = Q("1.9 in")
doc.recompute()

fillet = body.newObject("PartDesign::Fillet", "Fillet")
fillet.Base = (pocket9, edges_at(pocket9, [(-15.219, 0, -45.668)]))
fillet.Radius = Q("0.5 in")

sketch11 = body.newObject("Sketcher::SketchObject", "Sketch010")
sketch11.AttachmentSupport = (doc.getObject("XZ_Plane"), [""])
sketch11.MapMode = "FlatFace"
sketch11.AttachmentOffset = App.Placement(Vector(0, 0, -5 * 25.4), App.Rotation())
sketch11.addGeometry(Part.LineSegment(Vector(-38, -40, 0), Vector(-34, -46, 0)), False)
sketch11.addGeometry(Part.LineSegment(Vector(-34, -46, 0), Vector(-39, -46, 0)), False)
sketch11.addGeometry(Part.LineSegment(Vector(-39, -46, 0), Vector(-38, -40, 0)), False)
sketch11.addConstraint(Sketcher.Constraint("Coincident", 0, 2, 1, 1))
sketch11.addConstraint(Sketcher.Constraint("Coincident", 1, 2, 2, 1))
sketch11.addConstraint(Sketcher.Constraint("Coincident", 2, 2, 0, 1))
sketch11.addConstraint(Sketcher.Constraint("Horizontal", 1))
sketch11.addConstraint(Sketcher.Constraint("DistanceX", 1, 2, 1, 1, Q("5.312894 mm")))
sketch11.addConstraint(Sketcher.Constraint("DistanceX", 0, 2, -1, 1, Q("33.561061 mm")))
sketch11.addConstraint(Sketcher.Constraint("DistanceX", 1, 2, 2, 2, Q("1.206912 mm")))
sketch11.addConstraint(Sketcher.Constraint("DistanceY", 1, 2, 2, 2, Q("6.122319 mm")))
sketch11.addConstraint(Sketcher.Constraint("DistanceY", 0, 2, -1, 1, Q("45.668146 mm")))
pocket10 = body.newObject("PartDesign::Pocket", "Pocket009")
pocket10.Profile = sketch11
pocket10.Length = Q("1.9 in")
pocket10.Reversed = True

sketch12 = body.newObject("Sketcher::SketchObject", "Sketch011")
sketch12.AttachmentSupport = (doc.getObject("XZ_Plane"), [""])
sketch12.MapMode = "FlatFace"
sketch12.AttachmentOffset = App.Placement(Vector(0, 0, -5 * 25.4), App.Rotation())
sketch12.addGeometry(Part.LineSegment(Vector(32.6, -24, 0), Vector(0, -11.5, 0)), False)
sketch12.addGeometry(Part.LineSegment(Vector(0, -11.5, 0), Vector(11.8, -6.2, 0)), False)
sketch12.addGeometry(Part.ArcOfCircle(Part.Circle(Vector(25.3, -11.5, 0), Vector(0, 0, 1), 14.5), math.radians(112), math.radians(159)), False)
sketch12.addGeometry(Part.LineSegment(Vector(19.8, 1.9, 0), Vector(19.8, 9.6, 0)), False)
sketch12.addGeometry(Part.LineSegment(Vector(19.8, 9.6, 0), Vector(32.3, -2.1, 0)), False)
sketch12.addGeometry(Part.ArcOfCircle(Part.Circle(Vector(34.8, -11.5, 0), Vector(0, 0, 1), 9.7), math.radians(105), math.radians(278)), False)
sketch12.addGeometry(Part.ArcOfCircle(Part.Circle(Vector(25.3, -11.5, 0), Vector(0, 0, 1), 14.5), math.radians(-59.53), math.radians(-41.55)), False)
sketch12.addGeometry(Part.LineSegment(Vector(44.3, -13.4, 0), Vector(44.9, -13.9, 0)), False)
sketch12.addGeometry(Part.ArcOfCircle(Part.Circle(Vector(39.5, -8.9, 0), Vector(0, 0, 1), 7.3), math.radians(-52.89), math.radians(-43.09)), False)
sketch12.addGeometry(Part.ArcOfCircle(Part.Circle(Vector(34.8, -11.5, 0), Vector(0, 0, 1), 9.7), math.radians(-19.75), math.radians(-11.49)), False)
sketch12.addGeometry(Part.ArcOfCircle(Part.Circle(Vector(25.3, -11.5, 0), Vector(0, 0, 1), 14.5), math.radians(-19), math.radians(39)), False)
sketch12.addGeometry(Part.ArcOfCircle(Part.Circle(Vector(39.5, -8.9, 0), Vector(0, 0, 1), 7.3), math.radians(115), math.radians(266)), False)
sketch12.addConstraint(Sketcher.Constraint("Coincident", 0, 2, 1, 1))
sketch12.addConstraint(Sketcher.Constraint("Coincident", 1, 2, 2, 2))
sketch12.addConstraint(Sketcher.Constraint("Coincident", 2, 1, 3, 1))
sketch12.addConstraint(Sketcher.Constraint("Coincident", 3, 2, 4, 1))
sketch12.addConstraint(Sketcher.Constraint("Coincident", 4, 2, 5, 1))
sketch12.addConstraint(Sketcher.Constraint("Coincident", 5, 2, 6, 2))
sketch12.addConstraint(Sketcher.Constraint("Coincident", 6, 1, 0, 1))
sketch12.addConstraint(Sketcher.Constraint("Coincident", 7, 2, 8, 2))
sketch12.addConstraint(Sketcher.Constraint("Coincident", 8, 1, 9, 1))
sketch12.addConstraint(Sketcher.Constraint("Coincident", 9, 2, 7, 1))
sketch12.addConstraint(Sketcher.Constraint("Coincident", 10, 1, 11, 2))
sketch12.addConstraint(Sketcher.Constraint("Coincident", 11, 1, 10, 2))
sketch12.addConstraint(Sketcher.Constraint("Vertical", 3))
sketch12.addConstraint(Sketcher.Constraint("Coincident", 6, 3, 2, 3))
sketch12.addConstraint(Sketcher.Constraint("Coincident", 9, 3, 5, 3))
sketch12.addConstraint(Sketcher.Constraint("Coincident", 10, 3, 2, 3))
sketch12.addConstraint(Sketcher.Constraint("Coincident", 11, 3, 8, 3))
sketch12.addConstraint(Sketcher.Constraint("Equal", 2, 6))
sketch12.addConstraint(Sketcher.Constraint("Equal", 5, 9))
sketch12.addConstraint(Sketcher.Constraint("Equal", 6, 10))
sketch12.addConstraint(Sketcher.Constraint("Equal", 8, 11))
sketch12.addConstraint(Sketcher.Constraint("PointOnObject", 0, 2, -2))
sketch12.addConstraint(Sketcher.Constraint("Parallel", 4, 7))
sketch12.addConstraint(Sketcher.Constraint("Horizontal", 2, 3, 5, 3))
sketch12.addConstraint(Sketcher.Constraint("Horizontal", 10, 3, 0, 2))
sketch12.addConstraint(Sketcher.Constraint("Radius", 2, Q("14.483029 mm")))
sketch12.addConstraint(Sketcher.Constraint("Radius", 8, Q("7.287628 mm")))
sketch12.addConstraint(Sketcher.Constraint("DistanceY", 3, 1, 3, 2, Q("7.636099 mm")))
sketch12.addConstraint(Sketcher.Constraint("Radius", 5, Q("9.694738 mm")))
sketch12.addConstraint(Sketcher.Constraint("DistanceY", 8, 1, 11, 3, Q("0.2288001 in")))
sketch12.addConstraint(Sketcher.Constraint("DistanceX", -1, 1, 9, 2, Q("44.3112 mm")))
sketch12.addConstraint(Sketcher.Constraint("DistanceX", 2, 1, 6, 3, Q("5.509498 mm")))
sketch12.addConstraint(Sketcher.Constraint("DistanceY", 6, 1, 5, 2, Q("2.876499 mm")))
sketch12.addConstraint(Sketcher.Constraint("DistanceY", 7, 2, 11, 3, Q("4.978799 mm")))
sketch12.addConstraint(Sketcher.Constraint("DistanceY", 10, 1, 9, 3, Q("4.7299 mm")))
sketch12.addConstraint(Sketcher.Constraint("Distance", 0, Q("34.929289 mm")))
sketch12.addConstraint(Sketcher.Constraint("Distance", 1, Q("12.90654 mm")))
sketch12.addConstraint(Sketcher.Constraint("Distance", 4, Q("17.095089 mm")))
sketch12.addConstraint(Sketcher.Constraint("DistanceY", 8, 3, -1, 1, Q("8.93587 mm")))
pocket11 = body.newObject("PartDesign::Pocket", "Pocket010")
pocket11.Profile = sketch12
pocket11.Length = Q("1.9 in")
pocket11.Reversed = True

sketch13 = body.newObject("Sketcher::SketchObject", "Sketch012")
sketch13.AttachmentSupport = (doc.getObject("XY_Plane"), [""])
sketch13.MapMode = "FlatFace"
sketch13.AttachmentOffset = App.Placement(Vector(0, 0, 48.412155), App.Rotation())
sketch13.addGeometry(Part.LineSegment(Vector(-14.9, 127, 0), Vector(-14.9, 120.7, 0)), False)
sketch13.addGeometry(Part.LineSegment(Vector(-14.9, 120.7, 0), Vector(-11.6, 120.7, 0)), False)
sketch13.addGeometry(Part.LineSegment(Vector(-11.6, 120.7, 0), Vector(-11.6, 127, 0)), False)
sketch13.addGeometry(Part.LineSegment(Vector(-11.6, 127, 0), Vector(-14.9, 127, 0)), False)
sketch13.addGeometry(Part.LineSegment(Vector(-8.6, 127, 0), Vector(-8.6, 120.7, 0)), False)
sketch13.addGeometry(Part.LineSegment(Vector(-8.6, 120.7, 0), Vector(-5.9, 120.7, 0)), False)
sketch13.addGeometry(Part.LineSegment(Vector(-5.9, 120.7, 0), Vector(-5.9, 127, 0)), False)
sketch13.addGeometry(Part.LineSegment(Vector(-5.9, 127, 0), Vector(-8.6, 127, 0)), False)
sketch13.addGeometry(Part.LineSegment(Vector(-3.1, 127, 0), Vector(-3.1, 120.7, 0)), False)
sketch13.addGeometry(Part.LineSegment(Vector(-3.1, 120.7, 0), Vector(0, 120.7, 0)), False)
sketch13.addGeometry(Part.LineSegment(Vector(0, 120.7, 0), Vector(0, 127, 0)), False)
sketch13.addGeometry(Part.LineSegment(Vector(0, 127, 0), Vector(-3.1, 127, 0)), False)
sketch13.addGeometry(Part.LineSegment(Vector(4.7, 127, 0), Vector(2.7, 127, 0)), False)
sketch13.addGeometry(Part.LineSegment(Vector(2.7, 127, 0), Vector(4.7, 118.6, 0)), False)
sketch13.addGeometry(Part.LineSegment(Vector(4.7, 118.6, 0), Vector(4.7, 127, 0)), False)
sketch13.addConstraint(Sketcher.Constraint("Coincident", 0, 2, 1, 1))
sketch13.addConstraint(Sketcher.Constraint("Coincident", 1, 2, 2, 1))
sketch13.addConstraint(Sketcher.Constraint("Coincident", 2, 2, 3, 1))
sketch13.addConstraint(Sketcher.Constraint("Coincident", 3, 2, 0, 1))
sketch13.addConstraint(Sketcher.Constraint("Coincident", 4, 2, 5, 1))
sketch13.addConstraint(Sketcher.Constraint("Coincident", 5, 2, 6, 1))
sketch13.addConstraint(Sketcher.Constraint("Coincident", 6, 2, 7, 1))
sketch13.addConstraint(Sketcher.Constraint("Coincident", 7, 2, 4, 1))
sketch13.addConstraint(Sketcher.Constraint("Coincident", 8, 2, 9, 1))
sketch13.addConstraint(Sketcher.Constraint("Coincident", 9, 2, 10, 1))
sketch13.addConstraint(Sketcher.Constraint("Coincident", 10, 2, 11, 1))
sketch13.addConstraint(Sketcher.Constraint("Coincident", 11, 2, 8, 1))
sketch13.addConstraint(Sketcher.Constraint("Coincident", 12, 2, 13, 1))
sketch13.addConstraint(Sketcher.Constraint("Coincident", 13, 2, 14, 1))
sketch13.addConstraint(Sketcher.Constraint("Coincident", 14, 2, 12, 1))
sketch13.addConstraint(Sketcher.Constraint("Vertical", 0))
sketch13.addConstraint(Sketcher.Constraint("Horizontal", 1))
sketch13.addConstraint(Sketcher.Constraint("Vertical", 2))
sketch13.addConstraint(Sketcher.Constraint("Horizontal", 3))
sketch13.addConstraint(Sketcher.Constraint("Vertical", 4))
sketch13.addConstraint(Sketcher.Constraint("Horizontal", 5))
sketch13.addConstraint(Sketcher.Constraint("Vertical", 6))
sketch13.addConstraint(Sketcher.Constraint("Horizontal", 7))
sketch13.addConstraint(Sketcher.Constraint("Vertical", 8))
sketch13.addConstraint(Sketcher.Constraint("Horizontal", 9))
sketch13.addConstraint(Sketcher.Constraint("Vertical", 10))
sketch13.addConstraint(Sketcher.Constraint("Horizontal", 11))
sketch13.addConstraint(Sketcher.Constraint("Horizontal", 12))
sketch13.addConstraint(Sketcher.Constraint("Vertical", 14))
sketch13.addConstraint(Sketcher.Constraint("PointOnObject", 9, 2, -2))
sketch13.addConstraint(Sketcher.Constraint("Horizontal", 1, 2, 4, 2))
sketch13.addConstraint(Sketcher.Constraint("Horizontal", 3, 2, 6, 2))
sketch13.addConstraint(Sketcher.Constraint("Horizontal", 5, 2, 8, 2))
sketch13.addConstraint(Sketcher.Constraint("Horizontal", 7, 2, 10, 2))
sketch13.addConstraint(Sketcher.Constraint("Horizontal", 11, 2, 12, 2))
sketch13.addConstraint(Sketcher.Constraint("DistanceY", -1, 1, 2, 2, Q("5 in")))
sketch13.addConstraint(Sketcher.Constraint("DistanceY", 14, 1, 14, 2, Q("8.425399 mm")))
sketch13.addConstraint(Sketcher.Constraint("DistanceX", 9, 1, 9, 2, Q("3.10431 mm")))
sketch13.addConstraint(Sketcher.Constraint("DistanceX", 6, 2, 12, 2, Q("8.6208 mm")))
sketch13.addConstraint(Sketcher.Constraint("DistanceX", 1, 1, 1, 2, Q("3.352326 mm")))
sketch13.addConstraint(Sketcher.Constraint("DistanceX", 5, 1, 5, 2, Q("2.726283 mm")))
sketch13.addConstraint(Sketcher.Constraint("DistanceX", 12, 2, 12, 1, Q("1.982488 mm")))
sketch13.addConstraint(Sketcher.Constraint("DistanceY", 0, 2, 0, 1, Q("6.321243 mm")))
sketch13.addConstraint(Sketcher.Constraint("DistanceX", -1, 1, 12, 2, Q("2.732268 mm")))
sketch13.addConstraint(Sketcher.Constraint("DistanceX", 0, 2, 4, 2, Q("6.293059 mm")))
pocket12 = body.newObject("PartDesign::Pocket", "Pocket011")
pocket12.Profile = sketch13
pocket12.Length = Q("1.9 in")

doc.recompute()
